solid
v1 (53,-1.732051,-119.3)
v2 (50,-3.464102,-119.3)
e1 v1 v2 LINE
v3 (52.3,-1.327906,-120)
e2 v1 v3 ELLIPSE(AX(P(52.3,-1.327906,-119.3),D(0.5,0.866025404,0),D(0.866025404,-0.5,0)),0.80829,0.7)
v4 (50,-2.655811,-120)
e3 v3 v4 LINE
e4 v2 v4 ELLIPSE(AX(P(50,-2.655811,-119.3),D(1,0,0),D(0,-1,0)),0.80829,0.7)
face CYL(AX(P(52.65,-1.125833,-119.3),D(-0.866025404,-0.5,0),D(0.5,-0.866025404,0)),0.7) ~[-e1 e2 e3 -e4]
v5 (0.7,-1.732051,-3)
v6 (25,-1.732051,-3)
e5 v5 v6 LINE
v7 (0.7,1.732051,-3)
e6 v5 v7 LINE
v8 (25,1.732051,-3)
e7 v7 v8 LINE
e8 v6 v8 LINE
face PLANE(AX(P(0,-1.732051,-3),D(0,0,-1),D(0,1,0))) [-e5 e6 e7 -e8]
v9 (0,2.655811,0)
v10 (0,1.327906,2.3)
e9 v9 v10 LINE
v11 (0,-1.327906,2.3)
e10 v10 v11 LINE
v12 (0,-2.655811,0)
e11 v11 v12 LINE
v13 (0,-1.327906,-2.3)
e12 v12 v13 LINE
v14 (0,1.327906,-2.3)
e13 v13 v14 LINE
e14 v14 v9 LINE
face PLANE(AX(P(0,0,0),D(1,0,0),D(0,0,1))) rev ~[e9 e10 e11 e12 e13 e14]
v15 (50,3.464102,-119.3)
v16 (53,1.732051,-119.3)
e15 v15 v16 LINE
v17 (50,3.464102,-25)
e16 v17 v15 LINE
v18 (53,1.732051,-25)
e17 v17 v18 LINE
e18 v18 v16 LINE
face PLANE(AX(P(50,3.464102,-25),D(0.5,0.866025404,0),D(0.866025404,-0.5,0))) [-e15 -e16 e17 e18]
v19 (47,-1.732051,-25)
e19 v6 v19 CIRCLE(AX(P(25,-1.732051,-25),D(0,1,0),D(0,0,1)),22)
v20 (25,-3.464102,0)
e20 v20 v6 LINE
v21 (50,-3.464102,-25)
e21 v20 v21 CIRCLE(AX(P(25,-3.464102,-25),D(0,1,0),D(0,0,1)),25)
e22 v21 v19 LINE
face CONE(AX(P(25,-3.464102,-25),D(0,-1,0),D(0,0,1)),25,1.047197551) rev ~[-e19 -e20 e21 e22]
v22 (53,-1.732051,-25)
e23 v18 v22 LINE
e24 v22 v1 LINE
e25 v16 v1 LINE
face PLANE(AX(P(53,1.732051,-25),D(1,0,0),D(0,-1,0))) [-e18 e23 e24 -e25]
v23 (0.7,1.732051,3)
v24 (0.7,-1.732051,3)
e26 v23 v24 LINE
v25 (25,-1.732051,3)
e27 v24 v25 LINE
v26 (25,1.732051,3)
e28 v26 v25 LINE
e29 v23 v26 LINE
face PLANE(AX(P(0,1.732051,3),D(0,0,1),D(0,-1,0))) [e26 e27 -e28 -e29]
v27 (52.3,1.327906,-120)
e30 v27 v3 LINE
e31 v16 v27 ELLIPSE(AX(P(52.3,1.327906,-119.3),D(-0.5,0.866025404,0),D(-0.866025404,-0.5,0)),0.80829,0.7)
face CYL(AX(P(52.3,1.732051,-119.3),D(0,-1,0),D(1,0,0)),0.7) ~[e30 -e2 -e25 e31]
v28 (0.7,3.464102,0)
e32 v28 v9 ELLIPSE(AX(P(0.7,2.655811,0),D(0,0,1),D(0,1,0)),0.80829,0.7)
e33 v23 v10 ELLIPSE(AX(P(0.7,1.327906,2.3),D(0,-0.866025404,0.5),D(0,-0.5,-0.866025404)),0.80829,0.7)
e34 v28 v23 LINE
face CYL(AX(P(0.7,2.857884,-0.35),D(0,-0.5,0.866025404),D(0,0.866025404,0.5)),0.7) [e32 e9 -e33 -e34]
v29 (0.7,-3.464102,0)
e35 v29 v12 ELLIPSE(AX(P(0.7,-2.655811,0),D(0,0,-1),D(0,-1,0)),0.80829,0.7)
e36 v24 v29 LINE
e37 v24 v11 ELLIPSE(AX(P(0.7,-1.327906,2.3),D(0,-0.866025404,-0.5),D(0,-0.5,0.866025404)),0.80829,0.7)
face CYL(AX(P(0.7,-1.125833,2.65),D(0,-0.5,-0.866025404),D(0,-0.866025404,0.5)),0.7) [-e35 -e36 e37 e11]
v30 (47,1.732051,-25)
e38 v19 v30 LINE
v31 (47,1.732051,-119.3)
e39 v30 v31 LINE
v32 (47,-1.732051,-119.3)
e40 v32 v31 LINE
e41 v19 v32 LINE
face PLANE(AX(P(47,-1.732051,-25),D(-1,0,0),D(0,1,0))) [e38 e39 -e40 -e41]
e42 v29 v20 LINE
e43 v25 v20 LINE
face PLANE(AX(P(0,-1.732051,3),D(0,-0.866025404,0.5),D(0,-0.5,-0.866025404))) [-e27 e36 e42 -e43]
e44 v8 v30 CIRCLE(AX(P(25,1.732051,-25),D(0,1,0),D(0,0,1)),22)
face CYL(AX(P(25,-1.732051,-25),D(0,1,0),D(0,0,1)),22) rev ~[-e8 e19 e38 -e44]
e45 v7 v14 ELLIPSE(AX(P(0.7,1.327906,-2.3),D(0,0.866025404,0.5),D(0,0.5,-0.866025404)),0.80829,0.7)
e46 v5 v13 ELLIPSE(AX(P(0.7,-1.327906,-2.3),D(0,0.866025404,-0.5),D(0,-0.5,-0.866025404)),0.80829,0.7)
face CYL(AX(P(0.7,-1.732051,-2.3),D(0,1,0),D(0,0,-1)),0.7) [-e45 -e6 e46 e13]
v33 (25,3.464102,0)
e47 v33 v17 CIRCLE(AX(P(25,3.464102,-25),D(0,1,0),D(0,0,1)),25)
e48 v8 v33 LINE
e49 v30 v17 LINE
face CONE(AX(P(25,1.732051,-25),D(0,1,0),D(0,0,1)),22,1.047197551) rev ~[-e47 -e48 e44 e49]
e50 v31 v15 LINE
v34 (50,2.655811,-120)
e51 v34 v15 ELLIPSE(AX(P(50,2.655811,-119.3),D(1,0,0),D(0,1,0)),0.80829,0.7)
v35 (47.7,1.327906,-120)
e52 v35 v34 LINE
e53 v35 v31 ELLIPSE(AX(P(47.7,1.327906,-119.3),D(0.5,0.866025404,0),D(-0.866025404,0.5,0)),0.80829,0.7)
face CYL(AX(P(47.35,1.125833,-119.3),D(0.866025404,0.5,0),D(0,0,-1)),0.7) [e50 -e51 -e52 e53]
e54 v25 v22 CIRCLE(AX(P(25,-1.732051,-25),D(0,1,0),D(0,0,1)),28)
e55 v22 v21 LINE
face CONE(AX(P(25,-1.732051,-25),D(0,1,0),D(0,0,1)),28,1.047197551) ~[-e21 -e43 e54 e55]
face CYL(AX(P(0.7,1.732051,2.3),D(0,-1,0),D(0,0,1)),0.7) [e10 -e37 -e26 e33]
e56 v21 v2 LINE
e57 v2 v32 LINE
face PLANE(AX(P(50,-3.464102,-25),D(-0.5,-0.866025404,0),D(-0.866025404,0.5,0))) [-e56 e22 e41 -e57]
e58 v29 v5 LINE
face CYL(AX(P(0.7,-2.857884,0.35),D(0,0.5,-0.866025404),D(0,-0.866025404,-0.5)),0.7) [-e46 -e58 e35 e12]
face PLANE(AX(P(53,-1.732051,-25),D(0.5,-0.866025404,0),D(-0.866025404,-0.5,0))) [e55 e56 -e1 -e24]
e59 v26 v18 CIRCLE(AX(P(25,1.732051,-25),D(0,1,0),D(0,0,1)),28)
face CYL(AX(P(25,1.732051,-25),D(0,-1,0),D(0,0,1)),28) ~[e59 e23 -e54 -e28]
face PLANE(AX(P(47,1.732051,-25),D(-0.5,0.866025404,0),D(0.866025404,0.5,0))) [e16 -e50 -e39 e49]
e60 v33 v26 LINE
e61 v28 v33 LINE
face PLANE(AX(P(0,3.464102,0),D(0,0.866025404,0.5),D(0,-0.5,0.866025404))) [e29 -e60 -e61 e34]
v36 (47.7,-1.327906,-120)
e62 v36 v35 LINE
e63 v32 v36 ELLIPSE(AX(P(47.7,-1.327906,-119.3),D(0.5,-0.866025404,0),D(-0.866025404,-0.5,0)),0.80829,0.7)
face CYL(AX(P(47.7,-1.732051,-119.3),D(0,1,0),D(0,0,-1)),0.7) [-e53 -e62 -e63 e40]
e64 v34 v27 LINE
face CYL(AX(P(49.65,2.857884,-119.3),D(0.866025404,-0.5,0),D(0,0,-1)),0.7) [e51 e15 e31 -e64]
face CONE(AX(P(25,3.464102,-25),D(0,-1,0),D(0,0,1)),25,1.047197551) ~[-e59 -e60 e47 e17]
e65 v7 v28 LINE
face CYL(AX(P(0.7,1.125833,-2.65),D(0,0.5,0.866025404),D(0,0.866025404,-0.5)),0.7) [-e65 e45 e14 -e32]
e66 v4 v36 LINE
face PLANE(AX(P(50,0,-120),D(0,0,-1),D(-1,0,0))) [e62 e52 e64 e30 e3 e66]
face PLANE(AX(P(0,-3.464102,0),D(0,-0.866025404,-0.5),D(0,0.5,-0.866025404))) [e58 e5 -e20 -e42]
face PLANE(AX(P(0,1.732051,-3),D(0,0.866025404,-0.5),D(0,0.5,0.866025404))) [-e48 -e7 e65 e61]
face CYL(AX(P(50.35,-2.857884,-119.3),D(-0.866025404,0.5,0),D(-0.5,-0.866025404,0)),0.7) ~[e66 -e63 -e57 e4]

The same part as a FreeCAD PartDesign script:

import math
import FreeCAD as App
import Part
import Sketcher

V = App.Vector
Q = App.Units.Quantity


def edges_at(feature, points):
    """Names of the edges that pass closest to the given points."""
    edges = feature.Shape.Edges
    near = lambda p: min(range(len(edges)), key=lambda i: edges[i].distToShape(Part.Vertex(*p))[0])
    return sorted({f"Edge{near(p) + 1}" for p in points})


def add_polygon(sketch, points):
    """Adds a closed chain of lines whose ends are joined by coincident constraints."""
    first, n = sketch.GeometryCount, len(points)
    for a, b in zip(points, points[1:] + points[:1]):
        sketch.addGeometry(Part.LineSegment(App.Vector(*a, 0), App.Vector(*b, 0)), False)
    for i in range(n):
        sketch.addConstraint(Sketcher.Constraint("Coincident", first + i, 2, first + (i + 1) % n, 1))

doc = App.newDocument("Part")
body = doc.addObject("PartDesign::Body", "Body")

sketch1 = doc.addObject("Sketcher::SketchObject", "Sketch")
body.addObject(sketch1)
sketch1.AttachmentSupport = (doc.YZ_Plane, [""])
sketch1.MapMode = "FlatFace"
add_polygon(sketch1, [(-1.732051, 3), (-3.464102, 0), (-1.732051, -3), (1.732051, -3), (3.464102, 0), (1.732051, 3)])
sketch1.addConstraint(Sketcher.Constraint("Horizontal", 2))
sketch1.addConstraint(Sketcher.Constraint("Horizontal", 5))
sketch1.addConstraint(Sketcher.Constraint("Symmetric", 0, 2, 3, 2, -1, 1))
sketch1.addConstraint(Sketcher.Constraint("Symmetric", 1, 2, 4, 2, -1, 1))
sketch1.addConstraint(Sketcher.Constraint("PointOnObject", 0, 2, -1))
sketch1.addConstraint(Sketcher.Constraint("Parallel", 0, 3))
sketch1.addConstraint(Sketcher.Constraint("Vertical", 2, 2, 4, 2))
sketch1.addConstraint(Sketcher.Constraint("Angle", 0, Q("-120 deg")))
sketch1.addConstraint(Sketcher.Constraint("DistanceY", 1, 2, -1, 1, Q("3 mm")))
sketch1.addConstraint(Sketcher.Constraint("DistanceX", 2, 1, 2, 2, Q("3.464102 mm")))

sketch2 = doc.addObject("Sketcher::SketchObject", "Sketch001")
body.addObject(sketch2)
sketch2.AttachmentSupport = (doc.XZ_Plane, [""])
sketch2.MapMode = "FlatFace"
sketch2.addGeometry(Part.LineSegment(V(0, 0, 0), V(25, 0, 0)), False)
sketch2.addGeometry(Part.ArcOfCircle(Part.Circle(V(25, -25, 0), V(0, 0, 1), 25), math.radians(0), math.radians(90)), False)
sketch2.addGeometry(Part.LineSegment(V(50, -25, 0), V(50, -120, 0)), False)
sketch2.addConstraint(Sketcher.Constraint("Tangent", 0, 2, 1, 2))
sketch2.addConstraint(Sketcher.Constraint("Tangent", 1, 1, 2, 1))
sketch2.addConstraint(Sketcher.Constraint("Horizontal", 0))
sketch2.addConstraint(Sketcher.Constraint("Vertical", 2))
sketch2.addConstraint(Sketcher.Constraint("Coincident", 0, 1, -1, 1))
sketch2.addConstraint(Sketcher.Constraint("Radius", 1, Q("25 mm")))
sketch2.addConstraint(Sketcher.Constraint("DistanceX", 0, 1, 0, 2, Q("25 mm")))
sketch2.addConstraint(Sketcher.Constraint("DistanceY", 2, 2, 2, 1, Q("95 mm")))
doc.recompute()

additivepipe = doc.addObject("PartDesign::AdditivePipe", "AdditivePipe")
body.addObject(additivepipe)
additivepipe.Profile = sketch1
additivepipe.Spine = (sketch2, ["Edge1", "Edge2", "Edge3"])
doc.recompute()

fillet = doc.addObject("PartDesign::Fillet", "Fillet")
body.addObject(fillet)
fillet.Base = (additivepipe, edges_at(additivepipe, [
    (0, 0, 3),
    (0, -2.598, 1.5),
    (0, -2.598, -1.5),
    (0, 0, -3),
    (0, 2.598, -1.5),
    (0, 2.598, 1.5),
]))
fillet.Radius = 0.7
doc.recompute()

fillet2 = doc.addObject("PartDesign::Fillet", "Fillet001")
body.addObject(fillet2)
fillet2.Base = (fillet, edges_at(fillet, [
    (53, 0, -120),
    (51.5, -2.598, -120),
    (48.5, -2.598, -120),
    (47, 0, -120),
    (48.5, 2.598, -120),
    (51.5, 2.598, -120),
]))
fillet2.Radius = 0.7

doc.recompute()
